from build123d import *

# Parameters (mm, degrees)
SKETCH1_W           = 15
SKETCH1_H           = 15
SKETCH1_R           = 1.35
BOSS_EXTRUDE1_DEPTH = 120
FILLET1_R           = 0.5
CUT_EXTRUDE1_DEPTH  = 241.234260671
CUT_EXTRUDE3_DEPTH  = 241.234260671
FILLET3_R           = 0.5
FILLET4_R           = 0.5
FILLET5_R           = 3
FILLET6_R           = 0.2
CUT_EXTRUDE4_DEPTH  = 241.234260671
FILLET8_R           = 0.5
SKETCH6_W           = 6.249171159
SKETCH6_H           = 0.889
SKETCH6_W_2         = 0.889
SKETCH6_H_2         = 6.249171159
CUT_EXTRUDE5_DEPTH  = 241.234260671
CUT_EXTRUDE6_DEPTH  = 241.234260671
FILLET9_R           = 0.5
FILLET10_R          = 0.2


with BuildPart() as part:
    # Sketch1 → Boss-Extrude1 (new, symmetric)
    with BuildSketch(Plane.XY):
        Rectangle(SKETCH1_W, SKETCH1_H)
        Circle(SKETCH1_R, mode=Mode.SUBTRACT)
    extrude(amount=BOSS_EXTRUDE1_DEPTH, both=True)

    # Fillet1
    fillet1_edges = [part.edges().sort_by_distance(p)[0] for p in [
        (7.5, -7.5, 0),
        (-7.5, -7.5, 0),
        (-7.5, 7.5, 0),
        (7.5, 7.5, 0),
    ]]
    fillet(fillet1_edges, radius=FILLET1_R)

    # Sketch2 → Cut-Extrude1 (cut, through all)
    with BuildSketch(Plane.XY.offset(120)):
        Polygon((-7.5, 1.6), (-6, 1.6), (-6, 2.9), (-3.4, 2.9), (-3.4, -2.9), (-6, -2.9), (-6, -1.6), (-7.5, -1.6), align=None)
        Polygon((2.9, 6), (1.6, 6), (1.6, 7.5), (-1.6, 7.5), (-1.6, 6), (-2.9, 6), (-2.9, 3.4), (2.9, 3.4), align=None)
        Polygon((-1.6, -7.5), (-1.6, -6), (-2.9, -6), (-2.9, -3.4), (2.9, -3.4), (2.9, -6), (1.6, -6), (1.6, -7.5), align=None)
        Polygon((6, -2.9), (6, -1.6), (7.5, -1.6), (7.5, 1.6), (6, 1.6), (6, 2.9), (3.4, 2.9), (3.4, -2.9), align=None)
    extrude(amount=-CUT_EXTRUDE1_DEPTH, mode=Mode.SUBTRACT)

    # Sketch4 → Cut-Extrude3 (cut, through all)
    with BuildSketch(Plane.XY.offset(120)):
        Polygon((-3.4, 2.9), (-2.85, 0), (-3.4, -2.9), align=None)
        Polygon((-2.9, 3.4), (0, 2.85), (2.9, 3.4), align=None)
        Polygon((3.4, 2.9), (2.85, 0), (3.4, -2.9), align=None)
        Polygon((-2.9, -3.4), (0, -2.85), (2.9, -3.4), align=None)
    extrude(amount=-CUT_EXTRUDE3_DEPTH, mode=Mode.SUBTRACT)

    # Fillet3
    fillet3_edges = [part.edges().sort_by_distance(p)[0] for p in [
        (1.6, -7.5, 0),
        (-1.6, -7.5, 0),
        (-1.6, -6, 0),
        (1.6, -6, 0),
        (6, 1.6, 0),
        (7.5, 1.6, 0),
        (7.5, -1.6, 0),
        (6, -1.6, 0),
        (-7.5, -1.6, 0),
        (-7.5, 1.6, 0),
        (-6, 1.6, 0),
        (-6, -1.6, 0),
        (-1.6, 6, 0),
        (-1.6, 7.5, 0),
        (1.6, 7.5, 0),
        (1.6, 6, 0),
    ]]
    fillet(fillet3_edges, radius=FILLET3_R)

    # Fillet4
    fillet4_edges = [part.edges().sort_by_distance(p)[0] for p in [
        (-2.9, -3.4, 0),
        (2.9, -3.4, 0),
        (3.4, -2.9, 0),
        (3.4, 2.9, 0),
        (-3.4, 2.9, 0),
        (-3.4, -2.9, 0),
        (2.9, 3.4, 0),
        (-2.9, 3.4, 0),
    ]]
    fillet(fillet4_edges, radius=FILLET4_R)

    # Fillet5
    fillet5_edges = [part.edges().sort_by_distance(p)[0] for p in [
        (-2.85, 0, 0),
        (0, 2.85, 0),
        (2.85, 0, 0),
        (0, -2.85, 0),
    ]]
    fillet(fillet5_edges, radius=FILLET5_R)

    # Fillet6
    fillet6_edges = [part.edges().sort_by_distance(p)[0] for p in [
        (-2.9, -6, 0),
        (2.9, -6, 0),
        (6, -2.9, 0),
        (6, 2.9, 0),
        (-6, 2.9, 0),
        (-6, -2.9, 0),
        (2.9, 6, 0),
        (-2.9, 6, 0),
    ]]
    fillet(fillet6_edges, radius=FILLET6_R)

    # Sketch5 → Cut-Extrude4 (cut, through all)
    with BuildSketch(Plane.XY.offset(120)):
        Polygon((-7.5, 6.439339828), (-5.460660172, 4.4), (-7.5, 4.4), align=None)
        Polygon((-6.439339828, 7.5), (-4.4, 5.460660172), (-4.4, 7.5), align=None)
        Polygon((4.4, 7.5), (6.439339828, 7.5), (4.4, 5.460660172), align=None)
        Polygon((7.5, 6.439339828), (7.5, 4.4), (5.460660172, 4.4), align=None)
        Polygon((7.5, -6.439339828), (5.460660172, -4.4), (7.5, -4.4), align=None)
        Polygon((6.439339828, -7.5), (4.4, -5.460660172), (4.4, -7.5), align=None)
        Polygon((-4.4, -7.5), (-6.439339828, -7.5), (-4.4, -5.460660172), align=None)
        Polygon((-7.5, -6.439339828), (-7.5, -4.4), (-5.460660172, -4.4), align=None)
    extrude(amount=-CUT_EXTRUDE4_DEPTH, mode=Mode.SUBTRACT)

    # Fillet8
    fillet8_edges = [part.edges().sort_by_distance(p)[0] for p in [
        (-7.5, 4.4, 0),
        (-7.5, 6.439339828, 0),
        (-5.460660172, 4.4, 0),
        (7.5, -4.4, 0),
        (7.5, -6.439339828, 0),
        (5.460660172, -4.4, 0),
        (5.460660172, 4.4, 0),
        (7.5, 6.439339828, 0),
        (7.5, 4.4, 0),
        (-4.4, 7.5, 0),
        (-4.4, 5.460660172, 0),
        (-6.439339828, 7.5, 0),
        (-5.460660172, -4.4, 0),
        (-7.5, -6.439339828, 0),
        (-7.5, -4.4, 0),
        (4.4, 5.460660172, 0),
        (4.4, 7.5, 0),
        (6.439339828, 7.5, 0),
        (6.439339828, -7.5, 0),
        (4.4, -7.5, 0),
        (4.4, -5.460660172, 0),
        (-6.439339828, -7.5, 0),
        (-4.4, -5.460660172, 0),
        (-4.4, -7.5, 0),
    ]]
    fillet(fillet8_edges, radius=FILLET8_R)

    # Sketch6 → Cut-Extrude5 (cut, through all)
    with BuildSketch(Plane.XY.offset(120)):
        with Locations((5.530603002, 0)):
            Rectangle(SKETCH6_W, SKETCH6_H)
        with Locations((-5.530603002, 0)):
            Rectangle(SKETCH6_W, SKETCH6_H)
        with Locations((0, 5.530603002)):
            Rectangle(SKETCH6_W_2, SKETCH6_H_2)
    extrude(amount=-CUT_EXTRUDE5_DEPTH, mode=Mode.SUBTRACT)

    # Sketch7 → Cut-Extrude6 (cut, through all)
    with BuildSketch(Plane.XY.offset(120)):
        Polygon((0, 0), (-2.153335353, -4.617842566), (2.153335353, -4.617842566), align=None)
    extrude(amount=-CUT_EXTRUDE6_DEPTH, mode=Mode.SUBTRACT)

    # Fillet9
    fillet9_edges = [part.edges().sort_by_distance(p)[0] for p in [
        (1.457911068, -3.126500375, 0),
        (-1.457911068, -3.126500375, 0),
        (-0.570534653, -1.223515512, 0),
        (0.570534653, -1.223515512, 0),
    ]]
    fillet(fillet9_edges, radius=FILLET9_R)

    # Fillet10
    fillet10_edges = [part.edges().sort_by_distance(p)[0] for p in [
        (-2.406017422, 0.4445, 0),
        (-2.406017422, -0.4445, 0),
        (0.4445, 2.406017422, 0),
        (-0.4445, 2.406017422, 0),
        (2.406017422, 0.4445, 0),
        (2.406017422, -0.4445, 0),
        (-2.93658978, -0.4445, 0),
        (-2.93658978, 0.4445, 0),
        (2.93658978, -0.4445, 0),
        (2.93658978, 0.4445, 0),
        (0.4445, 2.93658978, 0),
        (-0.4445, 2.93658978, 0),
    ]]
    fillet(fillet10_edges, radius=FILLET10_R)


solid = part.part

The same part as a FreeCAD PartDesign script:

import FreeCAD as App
import Part
import Sketcher

V = App.Vector
Q = App.Units.Quantity


def edges_at(feature, points):
    """Names of the edges that pass closest to the given points."""
    edges = feature.Shape.Edges
    near = lambda p: min(range(len(edges)), key=lambda i: edges[i].distToShape(Part.Vertex(*p))[0])
    return sorted({f"Edge{near(p) + 1}" for p in points})

doc = App.newDocument("Part")
body = doc.addObject("PartDesign::Body", "Body")

sketch1 = body.newObject("Sketcher::SketchObject", "Sketch")
sketch1.AttachmentSupport = (doc.getObject("XY_Plane"), [""])
sketch1.MapMode = "FlatFace"
sketch1.addGeometry([
    Part.LineSegment(V(-7.5, 7.5, 0), V(-7.5, -7.5, 0)),
    Part.LineSegment(V(-7.5, -7.5, 0), V(7.5, -7.5, 0)),
    Part.LineSegment(V(7.5, -7.5, 0), V(7.5, 7.5, 0)),
    Part.LineSegment(V(7.5, 7.5, 0), V(-7.5, 7.5, 0)),
    Part.Circle(V(0, 0, 0), V(0, 0, 1), 1.4),
], False)
sketch1.addConstraint([
    Sketcher.Constraint("Coincident", 0, 2, 1, 1),
    Sketcher.Constraint("Coincident", 1, 2, 2, 1),
    Sketcher.Constraint("Coincident", 2, 2, 3, 1),
    Sketcher.Constraint("Coincident", 3, 2, 0, 1),
    Sketcher.Constraint("Vertical", 0),
    Sketcher.Constraint("Horizontal", 1),
    Sketcher.Constraint("Vertical", 2),
    Sketcher.Constraint("Horizontal", 3),
    Sketcher.Constraint("Coincident", 4, 3, -1, 1),
    Sketcher.Constraint("Symmetric", 0, 2, 2, 2, -1, 1),
    Sketcher.Constraint("Equal", 3, 0),
    Sketcher.Constraint("Diameter", 4, Q("2.7 mm")),
    Sketcher.Constraint("DistanceX", 1, 1, 1, 2, Q("15 mm")),
])
pad1 = body.newObject("PartDesign::Pad", "Pad")
pad1.Profile = sketch1
pad1.Length = 240
pad1.Midplane = True
doc.recompute()

fillet = body.newObject("PartDesign::Fillet", "Fillet")
fillet.Base = (pad1, edges_at(pad1, [
    (7.5, -7.5, 0),
    (-7.5, -7.5, 0),
    (-7.5, 7.5, 0),
    (7.5, 7.5, 0),
]))
fillet.Radius = 0.5

sketch2 = body.newObject("Sketcher::SketchObject", "Sketch001")
sketch2.AttachmentSupport = (doc.getObject("XY_Plane"), [""])
sketch2.MapMode = "FlatFace"
sketch2.AttachmentOffset = App.Placement(V(0, 0, 120), App.Rotation())
sketch2.addGeometry([
    Part.LineSegment(V(-6, 1.6, 0), V(-7.5, 1.6, 0)),
    Part.LineSegment(V(-7.5, 1.6, 0), V(-7.5, -1.6, 0)),
    Part.LineSegment(V(-7.5, -1.6, 0), V(-6, -1.6, 0)),
    Part.LineSegment(V(-6, -1.6, 0), V(-6, -2.9, 0)),
    Part.LineSegment(V(-6, -2.9, 0), V(-3.4, -2.9, 0)),
    Part.LineSegment(V(-3.4, -2.9, 0), V(-3.4, 2.9, 0)),
    Part.LineSegment(V(-3.4, 2.9, 0), V(-6, 2.9, 0)),
    Part.LineSegment(V(-6, 2.9, 0), V(-6, 1.6, 0)),
    Part.LineSegment(V(2.9, 6, 0), V(1.6, 6, 0)),
    Part.LineSegment(V(1.6, 6, 0), V(1.6, 7.5, 0)),
    Part.LineSegment(V(1.6, 7.5, 0), V(-1.6, 7.5, 0)),
    Part.LineSegment(V(-1.6, 7.5, 0), V(-1.6, 6, 0)),
    Part.LineSegment(V(-1.6, 6, 0), V(-2.9, 6, 0)),
    Part.LineSegment(V(-2.9, 6, 0), V(-2.9, 3.4, 0)),
    Part.LineSegment(V(-2.9, 3.4, 0), V(2.9, 3.4, 0)),
    Part.LineSegment(V(2.9, 3.4, 0), V(2.9, 6, 0)),
    Part.LineSegment(V(-1.6, -6, 0), V(-1.6, -7.5, 0)),
    Part.LineSegment(V(-1.6, -7.5, 0), V(1.6, -7.5, 0)),
    Part.LineSegment(V(1.6, -7.5, 0), V(1.6, -6, 0)),
    Part.LineSegment(V(1.6, -6, 0), V(2.9, -6, 0)),
    Part.LineSegment(V(2.9, -6, 0), V(2.9, -3.4, 0)),
    Part.LineSegment(V(2.9, -3.4, 0), V(-2.9, -3.4, 0)),
    Part.LineSegment(V(-2.9, -3.4, 0), V(-2.9, -6, 0)),
    Part.LineSegment(V(-2.9, -6, 0), V(-1.6, -6, 0)),
    Part.LineSegment(V(6, -2.9, 0), V(6, -1.6, 0)),
    Part.LineSegment(V(6, -1.6, 0), V(7.5, -1.6, 0)),
    Part.LineSegment(V(7.5, -1.6, 0), V(7.5, 1.6, 0)),
    Part.LineSegment(V(7.5, 1.6, 0), V(6, 1.6, 0)),
    Part.LineSegment(V(6, 1.6, 0), V(6, 2.9, 0)),
    Part.LineSegment(V(6, 2.9, 0), V(3.4, 2.9, 0)),
    Part.LineSegment(V(3.4, 2.9, 0), V(3.4, -2.9, 0)),
    Part.LineSegment(V(3.4, -2.9, 0), V(6, -2.9, 0)),
], False)
sketch2.addConstraint([
    Sketcher.Constraint("Coincident", 0, 2, 1, 1),
    Sketcher.Constraint("Coincident", 1, 2, 2, 1),
    Sketcher.Constraint("Coincident", 2, 2, 3, 1),
    Sketcher.Constraint("Coincident", 3, 2, 4, 1),
    Sketcher.Constraint("Coincident", 4, 2, 5, 1),
    Sketcher.Constraint("Coincident", 5, 2, 6, 1),
    Sketcher.Constraint("Coincident", 6, 2, 7, 1),
    Sketcher.Constraint("Coincident", 7, 2, 0, 1),
    Sketcher.Constraint("Coincident", 8, 2, 9, 1),
    Sketcher.Constraint("Coincident", 9, 2, 10, 1),
    Sketcher.Constraint("Coincident", 10, 2, 11, 1),
    Sketcher.Constraint("Coincident", 11, 2, 12, 1),
    Sketcher.Constraint("Coincident", 12, 2, 13, 1),
    Sketcher.Constraint("Coincident", 13, 2, 14, 1),
    Sketcher.Constraint("Coincident", 14, 2, 15, 1),
    Sketcher.Constraint("Coincident", 15, 2, 8, 1),
    Sketcher.Constraint("Coincident", 16, 2, 17, 1),
    Sketcher.Constraint("Coincident", 17, 2, 18, 1),
    Sketcher.Constraint("Coincident", 18, 2, 19, 1),
    Sketcher.Constraint("Coincident", 19, 2, 20, 1),
    Sketcher.Constraint("Coincident", 20, 2, 21, 1),
    Sketcher.Constraint("Coincident", 21, 2, 22, 1),
    Sketcher.Constraint("Coincident", 22, 2, 23, 1),
    Sketcher.Constraint("Coincident", 23, 2, 16, 1),
    Sketcher.Constraint("Coincident", 24, 2, 25, 1),
    Sketcher.Constraint("Coincident", 25, 2, 26, 1),
    Sketcher.Constraint("Coincident", 26, 2, 27, 1),
    Sketcher.Constraint("Coincident", 27, 2, 28, 1),
    Sketcher.Constraint("Coincident", 28, 2, 29, 1),
    Sketcher.Constraint("Coincident", 29, 2, 30, 1),
    Sketcher.Constraint("Coincident", 30, 2, 31, 1),
    Sketcher.Constraint("Coincident", 31, 2, 24, 1),
    Sketcher.Constraint("Horizontal", 0),
    Sketcher.Constraint("Vertical", 1),
    Sketcher.Constraint("Horizontal", 2),
    Sketcher.Constraint("Vertical", 3),
    Sketcher.Constraint("Horizontal", 4),
    Sketcher.Constraint("Vertical", 5),
    Sketcher.Constraint("Horizontal", 6),
    Sketcher.Constraint("Vertical", 7),
    Sketcher.Constraint("Horizontal", 8),
    Sketcher.Constraint("Vertical", 9),
    Sketcher.Constraint("Horizontal", 10),
    Sketcher.Constraint("Vertical", 11),
    Sketcher.Constraint("Horizontal", 12),
    Sketcher.Constraint("Vertical", 13),
    Sketcher.Constraint("Horizontal", 14),
    Sketcher.Constraint("Vertical", 15),
    Sketcher.Constraint("Vertical", 16),
    Sketcher.Constraint("Horizontal", 17),
    Sketcher.Constraint("Vertical", 18),
    Sketcher.Constraint("Horizontal", 19),
    Sketcher.Constraint("Vertical", 20),
    Sketcher.Constraint("Horizontal", 21),
    Sketcher.Constraint("Vertical", 22),
    Sketcher.Constraint("Horizontal", 23),
    Sketcher.Constraint("Vertical", 24),
    Sketcher.Constraint("Horizontal", 25),
    Sketcher.Constraint("Vertical", 26),
    Sketcher.Constraint("Horizontal", 27),
    Sketcher.Constraint("Vertical", 28),
    Sketcher.Constraint("Horizontal", 29),
    Sketcher.Constraint("Vertical", 30),
    Sketcher.Constraint("Horizontal", 31),
    Sketcher.Constraint("Symmetric", 9, 2, 16, 2, -1, 1),
    Sketcher.Constraint("Symmetric", 11, 2, 18, 2, -1, 1),
    Sketcher.Constraint("Symmetric", 13, 2, 20, 2, -1, 1),
    Sketcher.Constraint("Symmetric", 15, 2, 22, 2, -1, 1),
    Sketcher.Constraint("Symmetric", 7, 2, 24, 2, -1, 1),
    Sketcher.Constraint("Symmetric", 1, 2, 26, 2, -1, 1),
    Sketcher.Constraint("Symmetric", 3, 2, 28, 2, -1, 1),
    Sketcher.Constraint("Symmetric", 5, 2, 30, 2, -1, 1),
    Sketcher.Constraint("Symmetric", 8, 2, 11, 2, -2),
    Sketcher.Constraint("Symmetric", 2, 2, 24, 2, -2),
    Sketcher.Constraint("Horizontal", 6, 2, 28, 2),
    Sketcher.Constraint("Vertical", 15, 2, 19, 2),
    Sketcher.Constraint("Equal", 17, 1),
    Sketcher.Constraint("Equal", 23, 3),
    Sketcher.Constraint("Equal", 27, 9),
    Sketcher.Constraint("Equal", 31, 13),
    Sketcher.Constraint("DistanceX", 0, 2, 0, 1, Q("1.5 mm")),
    Sketcher.Constraint("DistanceX", 4, 1, 4, 2, Q("2.6 mm")),
    Sketcher.Constraint("DistanceX", 8, 2, 8, 1, Q("1.3 mm")),
    Sketcher.Constraint("DistanceX", 10, 2, 10, 1, Q("3.2 mm")),
    Sketcher.Constraint("DistanceX", 2, 2, -1, 1, Q("6 mm")),
    Sketcher.Constraint("DistanceY", -1, 1, 8, 2, Q("6 mm")),
])
pocket1 = body.newObject("PartDesign::Pocket", "Pocket")
pocket1.Profile = sketch2
pocket1.Type = "ThroughAll"

sketch3 = body.newObject("Sketcher::SketchObject", "Sketch002")
sketch3.AttachmentSupport = (doc.getObject("XY_Plane"), [""])
sketch3.MapMode = "FlatFace"
sketch3.AttachmentOffset = App.Placement(V(0, 0, 120), App.Rotation())
sketch3.addGeometry([
    Part.LineSegment(V(-2.9, 0, 0), V(-3.4, 2.9, 0)),
    Part.LineSegment(V(-3.4, 2.9, 0), V(-3.4, -2.9, 0)),
    Part.LineSegment(V(-3.4, -2.9, 0), V(-2.9, 0, 0)),
    Part.LineSegment(V(-2.9, 3.4, 0), V(0, 2.9, 0)),
    Part.LineSegment(V(0, 2.9, 0), V(2.9, 3.4, 0)),
    Part.LineSegment(V(2.9, 3.4, 0), V(-2.9, 3.4, 0)),
    Part.LineSegment(V(3.4, 2.9, 0), V(2.9, 0, 0)),
    Part.LineSegment(V(2.9, 0, 0), V(3.4, -2.9, 0)),
    Part.LineSegment(V(3.4, -2.9, 0), V(3.4, 2.9, 0)),
    Part.LineSegment(V(0, -2.9, 0), V(-2.9, -3.4, 0)),
    Part.LineSegment(V(-2.9, -3.4, 0), V(2.9, -3.4, 0)),
    Part.LineSegment(V(2.9, -3.4, 0), V(0, -2.9, 0)),
], False)
sketch3.addConstraint([
    Sketcher.Constraint("Coincident", 0, 2, 1, 1),
    Sketcher.Constraint("Coincident", 1, 2, 2, 1),
    Sketcher.Constraint("Coincident", 2, 2, 0, 1),
    Sketcher.Constraint("Coincident", 3, 2, 4, 1),
    Sketcher.Constraint("Coincident", 4, 2, 5, 1),
    Sketcher.Constraint("Coincident", 5, 2, 3, 1),
    Sketcher.Constraint("Coincident", 6, 2, 7, 1),
    Sketcher.Constraint("Coincident", 7, 2, 8, 1),
    Sketcher.Constraint("Coincident", 8, 2, 6, 1),
    Sketcher.Constraint("Coincident", 9, 2, 10, 1),
    Sketcher.Constraint("Coincident", 10, 2, 11, 1),
    Sketcher.Constraint("Coincident", 11, 2, 9, 1),
    Sketcher.Constraint("Vertical", 1),
    Sketcher.Constraint("Horizontal", 5),
    Sketcher.Constraint("Vertical", 8),
    Sketcher.Constraint("Horizontal", 10),
    Sketcher.Constraint("Symmetric", 2, 2, 6, 2, -1, 1),
    Sketcher.Constraint("Symmetric", 0, 2, 7, 2, -1, 1),
    Sketcher.Constraint("Symmetric", 4, 2, 9, 2, -1, 1),
    Sketcher.Constraint("Symmetric", 3, 2, 11, 2, -1, 1),
    Sketcher.Constraint("PointOnObject", 2, 2, -1),
    Sketcher.Constraint("PointOnObject", 3, 2, -2),
    Sketcher.Constraint("Perpendicular", 2, 3),
    Sketcher.Constraint("Perpendicular", 0, 4),
    Sketcher.Constraint("Perpendicular", 3, 6),
    Sketcher.Constraint("Perpendicular", 6, 11),
    Sketcher.Constraint("Horizontal", 1, 2, 7, 2),
    Sketcher.Constraint("Equal", 10, 1),
    Sketcher.Constraint("DistanceX", 5, 2, 5, 1, Q("5.8 mm")),
    Sketcher.Constraint("DistanceX", 0, 2, -1, 1, Q("3.4 mm")),
    Sketcher.Constraint("DistanceY", -1, 1, 4, 2, Q("3.4 mm")),
    Sketcher.Constraint("DistanceX", 2, 2, 6, 2, Q("5.7 mm")),
])
pocket2 = body.newObject("PartDesign::Pocket", "Pocket001")
pocket2.Profile = sketch3
pocket2.Type = "ThroughAll"
doc.recompute()

fillet2 = body.newObject("PartDesign::Fillet", "Fillet001")
fillet2.Base = (pocket2, edges_at(pocket2, [
    (1.6, -7.5, 0),
    (-1.6, -7.5, 0),
    (-1.6, -6, 0),
    (1.6, -6, 0),
    (6, 1.6, 0),
    (7.5, 1.6, 0),
    (7.5, -1.6, 0),
    (6, -1.6, 0),
    (-7.5, -1.6, 0),
    (-7.5, 1.6, 0),
    (-6, 1.6, 0),
    (-6, -1.6, 0),
    (-1.6, 6, 0),
    (-1.6, 7.5, 0),
    (1.6, 7.5, 0),
    (1.6, 6, 0),
]))
fillet2.Radius = 0.5
doc.recompute()

fillet3 = body.newObject("PartDesign::Fillet", "Fillet002")
fillet3.Base = (fillet2, edges_at(fillet2, [
    (-2.9, -3.4, 0),
    (2.9, -3.4, 0),
    (3.4, -2.9, 0),
    (3.4, 2.9, 0),
    (-3.4, 2.9, 0),
    (-3.4, -2.9, 0),
    (2.9, 3.4, 0),
    (-2.9, 3.4, 0),
]))
fillet3.Radius = 0.5
doc.recompute()

fillet4 = body.newObject("PartDesign::Fillet", "Fillet003")
fillet4.Base = (fillet3, edges_at(fillet3, [
    (-2.85, 0, 0),
    (0, 2.85, 0),
    (2.85, 0, 0),
    (0, -2.85, 0),
]))
fillet4.Radius = 3
doc.recompute()

fillet5 = body.newObject("PartDesign::Fillet", "Fillet004")
fillet5.Base = (fillet4, edges_at(fillet4, [
    (-2.9, -6, 0),
    (2.9, -6, 0),
    (6, -2.9, 0),
    (6, 2.9, 0),
    (-6, 2.9, 0),
    (-6, -2.9, 0),
    (2.9, 6, 0),
    (-2.9, 6, 0),
]))
fillet5.Radius = 0.2

sketch4 = body.newObject("Sketcher::SketchObject", "Sketch003")
sketch4.AttachmentSupport = (doc.getObject("XY_Plane"), [""])
sketch4.MapMode = "FlatFace"
sketch4.AttachmentOffset = App.Placement(V(0, 0, 120), App.Rotation())
sketch4.addGeometry([
    Part.LineSegment(V(-5.5, 4.4, 0), V(-7.5, 6.4, 0)),
    Part.LineSegment(V(-7.5, 6.4, 0), V(-7.5, 4.4, 0)),
    Part.LineSegment(V(-7.5, 4.4, 0), V(-5.5, 4.4, 0)),
    Part.LineSegment(V(-6.4, 7.5, 0), V(-4.4, 5.5, 0)),
    Part.LineSegment(V(-4.4, 5.5, 0), V(-4.4, 7.5, 0)),
    Part.LineSegment(V(-4.4, 7.5, 0), V(-6.4, 7.5, 0)),
    Part.LineSegment(V(6.4, 7.5, 0), V(4.4, 7.5, 0)),
    Part.LineSegment(V(4.4, 7.5, 0), V(4.4, 5.5, 0)),
    Part.LineSegment(V(4.4, 5.5, 0), V(6.4, 7.5, 0)),
    Part.LineSegment(V(7.5, 4.4, 0), V(7.5, 6.4, 0)),
    Part.LineSegment(V(7.5, 6.4, 0), V(5.5, 4.4, 0)),
    Part.LineSegment(V(5.5, 4.4, 0), V(7.5, 4.4, 0)),
    Part.LineSegment(V(5.5, -4.4, 0), V(7.5, -6.4, 0)),
    Part.LineSegment(V(7.5, -6.4, 0), V(7.5, -4.4, 0)),
    Part.LineSegment(V(7.5, -4.4, 0), V(5.5, -4.4, 0)),
    Part.LineSegment(V(6.4, -7.5, 0), V(4.4, -5.5, 0)),
    Part.LineSegment(V(4.4, -5.5, 0), V(4.4, -7.5, 0)),
    Part.LineSegment(V(4.4, -7.5, 0), V(6.4, -7.5, 0)),
    Part.LineSegment(V(-6.4, -7.5, 0), V(-4.4, -7.5, 0)),
    Part.LineSegment(V(-4.4, -7.5, 0), V(-4.4, -5.5, 0)),
    Part.LineSegment(V(-4.4, -5.5, 0), V(-6.4, -7.5, 0)),
    Part.LineSegment(V(-7.5, -4.4, 0), V(-7.5, -6.4, 0)),
    Part.LineSegment(V(-7.5, -6.4, 0), V(-5.5, -4.4, 0)),
    Part.LineSegment(V(-5.5, -4.4, 0), V(-7.5, -4.4, 0)),
], False)
sketch4.addConstraint([
    Sketcher.Constraint("Coincident", 0, 2, 1, 1),
    Sketcher.Constraint("Coincident", 1, 2, 2, 1),
    Sketcher.Constraint("Coincident", 2, 2, 0, 1),
    Sketcher.Constraint("Coincident", 3, 2, 4, 1),
    Sketcher.Constraint("Coincident", 4, 2, 5, 1),
    Sketcher.Constraint("Coincident", 5, 2, 3, 1),
    Sketcher.Constraint("Coincident", 6, 2, 7, 1),
    Sketcher.Constraint("Coincident", 7, 2, 8, 1),
    Sketcher.Constraint("Coincident", 8, 2, 6, 1),
    Sketcher.Constraint("Coincident", 9, 2, 10, 1),
    Sketcher.Constraint("Coincident", 10, 2, 11, 1),
    Sketcher.Constraint("Coincident", 11, 2, 9, 1),
    Sketcher.Constraint("Coincident", 12, 2, 13, 1),
    Sketcher.Constraint("Coincident", 13, 2, 14, 1),
    Sketcher.Constraint("Coincident", 14, 2, 12, 1),
    Sketcher.Constraint("Coincident", 15, 2, 16, 1),
    Sketcher.Constraint("Coincident", 16, 2, 17, 1),
    Sketcher.Constraint("Coincident", 17, 2, 15, 1),
    Sketcher.Constraint("Coincident", 18, 2, 19, 1),
    Sketcher.Constraint("Coincident", 19, 2, 20, 1),
    Sketcher.Constraint("Coincident", 20, 2, 18, 1),
    Sketcher.Constraint("Coincident", 21, 2, 22, 1),
    Sketcher.Constraint("Coincident", 22, 2, 23, 1),
    Sketcher.Constraint("Coincident", 23, 2, 21, 1),
    Sketcher.Constraint("Vertical", 1),
    Sketcher.Constraint("Horizontal", 2),
    Sketcher.Constraint("Vertical", 4),
    Sketcher.Constraint("Horizontal", 5),
    Sketcher.Constraint("Horizontal", 6),
    Sketcher.Constraint("Vertical", 7),
    Sketcher.Constraint("Vertical", 9),
    Sketcher.Constraint("Horizontal", 11),
    Sketcher.Constraint("Vertical", 13),
    Sketcher.Constraint("Horizontal", 14),
    Sketcher.Constraint("Vertical", 16),
    Sketcher.Constraint("Horizontal", 17),
    Sketcher.Constraint("Horizontal", 18),
    Sketcher.Constraint("Vertical", 19),
    Sketcher.Constraint("Vertical", 21),
    Sketcher.Constraint("Horizontal", 23),
    Sketcher.Constraint("Symmetric", 0, 2, 12, 2, -1, 1),
    Sketcher.Constraint("Symmetric", 2, 2, 14, 2, -1, 1),
    Sketcher.Constraint("Symmetric", 3, 2, 15, 2, -1, 1),
    Sketcher.Constraint("Symmetric", 5, 2, 17, 2, -1, 1),
    Sketcher.Constraint("Symmetric", 6, 2, 18, 2, -1, 1),
    Sketcher.Constraint("Symmetric", 9, 2, 21, 2, -1, 1),
    Sketcher.Constraint("Symmetric", 10, 2, 22, 2, -1, 1),
    Sketcher.Constraint("Symmetric", 4, 2, 6, 2, -2),
    Sketcher.Constraint("Symmetric", 0, 2, 9, 2, -2),
    Sketcher.Constraint("Symmetric", 2, 2, 10, 2, -2),
    Sketcher.Constraint("Parallel", 0, 3),
    Sketcher.Constraint("Perpendicular", 3, 8),
    Sketcher.Constraint("Parallel", 8, 10),
    Sketcher.Constraint("Perpendicular", 15, 20),
    Sketcher.Constraint("Horizontal", 3, 2, 7, 2),
    Sketcher.Constraint("Horizontal", 15, 2, 19, 2),
    Sketcher.Constraint("Equal", 2, 5),
    Sketcher.Constraint("DistanceX", 0, 2, -1, 1, Q("7.5 mm")),
    Sketcher.Constraint("DistanceY", -1, 1, 1, 2, Q("4.4 mm")),
    Sketcher.Constraint("DistanceX", 3, 2, -1, 1, Q("4.4 mm")),
    Sketcher.Constraint("DistanceY", -1, 1, 4, 2, Q("7.5 mm")),
    Sketcher.Constraint("DistanceX", 2, 1, 2, 2, Q("2.03934 mm")),
])
pocket3 = body.newObject("PartDesign::Pocket", "Pocket002")
pocket3.Profile = sketch4
pocket3.Type = "ThroughAll"
doc.recompute()

fillet6 = body.newObject("PartDesign::Fillet", "Fillet005")
fillet6.Base = (pocket3, edges_at(pocket3, [
    (-7.5, 4.4, 0),
    (-7.5, 6.439, 0),
    (-5.461, 4.4, 0),
    (7.5, -4.4, 0),
    (7.5, -6.439, 0),
    (5.461, -4.4, 0),
    (5.461, 4.4, 0),
    (7.5, 6.439, 0),
    (7.5, 4.4, 0),
    (-4.4, 7.5, 0),
    (-4.4, 5.461, 0),
    (-6.439, 7.5, 0),
    (-5.461, -4.4, 0),
    (-7.5, -6.439, 0),
    (-7.5, -4.4, 0),
    (4.4, 5.461, 0),
    (4.4, 7.5, 0),
    (6.439, 7.5, 0),
    (6.439, -7.5, 0),
    (4.4, -7.5, 0),
    (4.4, -5.461, 0),
    (-6.439, -7.5, 0),
    (-4.4, -5.461, 0),
    (-4.4, -7.5, 0),
]))
fillet6.Radius = 0.5

sketch5 = body.newObject("Sketcher::SketchObject", "Sketch004")
sketch5.AttachmentSupport = (doc.getObject("XY_Plane"), [""])
sketch5.MapMode = "FlatFace"
sketch5.AttachmentOffset = App.Placement(V(0, 0, 120), App.Rotation())
sketch5.addGeometry([
    Part.LineSegment(V(2.4, 0.4, 0), V(2.4, -0.4, 0)),
    Part.LineSegment(V(2.4, -0.4, 0), V(8.7, -0.4, 0)),
    Part.LineSegment(V(8.7, -0.4, 0), V(8.7, 0.4, 0)),
    Part.LineSegment(V(8.7, 0.4, 0), V(2.4, 0.4, 0)),
    Part.LineSegment(V(-8.7, 0.4, 0), V(-8.7, -0.4, 0)),
    Part.LineSegment(V(-8.7, -0.4, 0), V(-2.4, -0.4, 0)),
    Part.LineSegment(V(-2.4, -0.4, 0), V(-2.4, 0.4, 0)),
    Part.LineSegment(V(-2.4, 0.4, 0), V(-8.7, 0.4, 0)),
    Part.LineSegment(V(-0.4, 8.7, 0), V(-0.4, 2.4, 0)),
    Part.LineSegment(V(-0.4, 2.4, 0), V(0.4, 2.4, 0)),
    Part.LineSegment(V(0.4, 2.4, 0), V(0.4, 8.7, 0)),
    Part.LineSegment(V(0.4, 8.7, 0), V(-0.4, 8.7, 0)),
], False)
sketch5.addConstraint([
    Sketcher.Constraint("Coincident", 0, 2, 1, 1),
    Sketcher.Constraint("Coincident", 1, 2, 2, 1),
    Sketcher.Constraint("Coincident", 2, 2, 3, 1),
    Sketcher.Constraint("Coincident", 3, 2, 0, 1),
    Sketcher.Constraint("Coincident", 4, 2, 5, 1),
    Sketcher.Constraint("Coincident", 5, 2, 6, 1),
    Sketcher.Constraint("Coincident", 6, 2, 7, 1),
    Sketcher.Constraint("Coincident", 7, 2, 4, 1),
    Sketcher.Constraint("Coincident", 8, 2, 9, 1),
    Sketcher.Constraint("Coincident", 9, 2, 10, 1),
    Sketcher.Constraint("Coincident", 10, 2, 11, 1),
    Sketcher.Constraint("Coincident", 11, 2, 8, 1),
    Sketcher.Constraint("Vertical", 0),
    Sketcher.Constraint("Horizontal", 1),
    Sketcher.Constraint("Vertical", 2),
    Sketcher.Constraint("Horizontal", 3),
    Sketcher.Constraint("Vertical", 4),
    Sketcher.Constraint("Horizontal", 5),
    Sketcher.Constraint("Vertical", 6),
    Sketcher.Constraint("Horizontal", 7),
    Sketcher.Constraint("Vertical", 8),
    Sketcher.Constraint("Horizontal", 9),
    Sketcher.Constraint("Vertical", 10),
    Sketcher.Constraint("Horizontal", 11),
    Sketcher.Constraint("Symmetric", 2, 2, 4, 2, -1, 1),
    Sketcher.Constraint("Symmetric", 0, 2, 6, 2, -1, 1),
    Sketcher.Constraint("Horizontal", 1, 2, 4, 2),
    Sketcher.Constraint("Equal", 11, 0),
    Sketcher.Constraint("Equal", 7, 8),
    Sketcher.Constraint("DistanceX", 9, 1, 9, 2, Q("0.889 mm")),
    Sketcher.Constraint("DistanceX", 1, 1, 1, 2, Q("6.249171 mm")),
    Sketcher.Constraint("DistanceX", 8, 2, -1, 1, Q("0.4445 mm")),
    Sketcher.Constraint("DistanceX", -1, 1, 1, 2, Q("8.655189 mm")),
    Sketcher.Constraint("DistanceY", -1, 1, 10, 2, Q("8.655189 mm")),
])
pocket4 = body.newObject("PartDesign::Pocket", "Pocket003")
pocket4.Profile = sketch5
pocket4.Type = "ThroughAll"

sketch6 = body.newObject("Sketcher::SketchObject", "Sketch005")
sketch6.AttachmentSupport = (doc.getObject("XY_Plane"), [""])
sketch6.MapMode = "FlatFace"
sketch6.AttachmentOffset = App.Placement(V(0, 0, 120), App.Rotation())
sketch6.addGeometry([
    Part.LineSegment(V(0, 0, 0), V(-2.2, -4.6, 0)),
    Part.LineSegment(V(-2.2, -4.6, 0), V(2.2, -4.6, 0)),
    Part.LineSegment(V(2.2, -4.6, 0), V(0, 0, 0)),
], False)
sketch6.addConstraint([
    Sketcher.Constraint("Coincident", 0, 2, 1, 1),
    Sketcher.Constraint("Coincident", 1, 2, 2, 1),
    Sketcher.Constraint("Coincident", 2, 2, 0, 1),
    Sketcher.Constraint("Horizontal", 1),
    Sketcher.Constraint("Coincident", 2, 2, -1, 1),
    Sketcher.Constraint("Equal", 0, 2),
    Sketcher.Constraint("Angle", 0, Q("-115 deg")),
    Sketcher.Constraint("DistanceX", 1, 1, 1, 2, Q("4.306671 mm")),
])
pocket5 = body.newObject("PartDesign::Pocket", "Pocket004")
pocket5.Profile = sketch6
pocket5.Type = "ThroughAll"
doc.recompute()

fillet7 = body.newObject("PartDesign::Fillet", "Fillet006")
fillet7.Base = (pocket5, edges_at(pocket5, [
    (1.458, -3.127, 0),
    (-1.458, -3.127, 0),
    (-0.571, -1.224, 0),
    (0.571, -1.224, 0),
]))
fillet7.Radius = 0.5
doc.recompute()

fillet8 = body.newObject("PartDesign::Fillet", "Fillet007")
fillet8.Base = (fillet7, edges_at(fillet7, [
    (-2.406, 0.445, 0),
    (-2.406, -0.445, 0),
    (0.445, 2.406, 0),
    (-0.445, 2.406, 0),
    (2.406, 0.445, 0),
    (2.406, -0.445, 0),
    (-2.937, -0.445, 0),
    (-2.937, 0.445, 0),
    (2.937, -0.445, 0),
    (2.937, 0.445, 0),
    (0.445, 2.937, 0),
    (-0.445, 2.937, 0),
]))
fillet8.Radius = 0.2

doc.recompute()
